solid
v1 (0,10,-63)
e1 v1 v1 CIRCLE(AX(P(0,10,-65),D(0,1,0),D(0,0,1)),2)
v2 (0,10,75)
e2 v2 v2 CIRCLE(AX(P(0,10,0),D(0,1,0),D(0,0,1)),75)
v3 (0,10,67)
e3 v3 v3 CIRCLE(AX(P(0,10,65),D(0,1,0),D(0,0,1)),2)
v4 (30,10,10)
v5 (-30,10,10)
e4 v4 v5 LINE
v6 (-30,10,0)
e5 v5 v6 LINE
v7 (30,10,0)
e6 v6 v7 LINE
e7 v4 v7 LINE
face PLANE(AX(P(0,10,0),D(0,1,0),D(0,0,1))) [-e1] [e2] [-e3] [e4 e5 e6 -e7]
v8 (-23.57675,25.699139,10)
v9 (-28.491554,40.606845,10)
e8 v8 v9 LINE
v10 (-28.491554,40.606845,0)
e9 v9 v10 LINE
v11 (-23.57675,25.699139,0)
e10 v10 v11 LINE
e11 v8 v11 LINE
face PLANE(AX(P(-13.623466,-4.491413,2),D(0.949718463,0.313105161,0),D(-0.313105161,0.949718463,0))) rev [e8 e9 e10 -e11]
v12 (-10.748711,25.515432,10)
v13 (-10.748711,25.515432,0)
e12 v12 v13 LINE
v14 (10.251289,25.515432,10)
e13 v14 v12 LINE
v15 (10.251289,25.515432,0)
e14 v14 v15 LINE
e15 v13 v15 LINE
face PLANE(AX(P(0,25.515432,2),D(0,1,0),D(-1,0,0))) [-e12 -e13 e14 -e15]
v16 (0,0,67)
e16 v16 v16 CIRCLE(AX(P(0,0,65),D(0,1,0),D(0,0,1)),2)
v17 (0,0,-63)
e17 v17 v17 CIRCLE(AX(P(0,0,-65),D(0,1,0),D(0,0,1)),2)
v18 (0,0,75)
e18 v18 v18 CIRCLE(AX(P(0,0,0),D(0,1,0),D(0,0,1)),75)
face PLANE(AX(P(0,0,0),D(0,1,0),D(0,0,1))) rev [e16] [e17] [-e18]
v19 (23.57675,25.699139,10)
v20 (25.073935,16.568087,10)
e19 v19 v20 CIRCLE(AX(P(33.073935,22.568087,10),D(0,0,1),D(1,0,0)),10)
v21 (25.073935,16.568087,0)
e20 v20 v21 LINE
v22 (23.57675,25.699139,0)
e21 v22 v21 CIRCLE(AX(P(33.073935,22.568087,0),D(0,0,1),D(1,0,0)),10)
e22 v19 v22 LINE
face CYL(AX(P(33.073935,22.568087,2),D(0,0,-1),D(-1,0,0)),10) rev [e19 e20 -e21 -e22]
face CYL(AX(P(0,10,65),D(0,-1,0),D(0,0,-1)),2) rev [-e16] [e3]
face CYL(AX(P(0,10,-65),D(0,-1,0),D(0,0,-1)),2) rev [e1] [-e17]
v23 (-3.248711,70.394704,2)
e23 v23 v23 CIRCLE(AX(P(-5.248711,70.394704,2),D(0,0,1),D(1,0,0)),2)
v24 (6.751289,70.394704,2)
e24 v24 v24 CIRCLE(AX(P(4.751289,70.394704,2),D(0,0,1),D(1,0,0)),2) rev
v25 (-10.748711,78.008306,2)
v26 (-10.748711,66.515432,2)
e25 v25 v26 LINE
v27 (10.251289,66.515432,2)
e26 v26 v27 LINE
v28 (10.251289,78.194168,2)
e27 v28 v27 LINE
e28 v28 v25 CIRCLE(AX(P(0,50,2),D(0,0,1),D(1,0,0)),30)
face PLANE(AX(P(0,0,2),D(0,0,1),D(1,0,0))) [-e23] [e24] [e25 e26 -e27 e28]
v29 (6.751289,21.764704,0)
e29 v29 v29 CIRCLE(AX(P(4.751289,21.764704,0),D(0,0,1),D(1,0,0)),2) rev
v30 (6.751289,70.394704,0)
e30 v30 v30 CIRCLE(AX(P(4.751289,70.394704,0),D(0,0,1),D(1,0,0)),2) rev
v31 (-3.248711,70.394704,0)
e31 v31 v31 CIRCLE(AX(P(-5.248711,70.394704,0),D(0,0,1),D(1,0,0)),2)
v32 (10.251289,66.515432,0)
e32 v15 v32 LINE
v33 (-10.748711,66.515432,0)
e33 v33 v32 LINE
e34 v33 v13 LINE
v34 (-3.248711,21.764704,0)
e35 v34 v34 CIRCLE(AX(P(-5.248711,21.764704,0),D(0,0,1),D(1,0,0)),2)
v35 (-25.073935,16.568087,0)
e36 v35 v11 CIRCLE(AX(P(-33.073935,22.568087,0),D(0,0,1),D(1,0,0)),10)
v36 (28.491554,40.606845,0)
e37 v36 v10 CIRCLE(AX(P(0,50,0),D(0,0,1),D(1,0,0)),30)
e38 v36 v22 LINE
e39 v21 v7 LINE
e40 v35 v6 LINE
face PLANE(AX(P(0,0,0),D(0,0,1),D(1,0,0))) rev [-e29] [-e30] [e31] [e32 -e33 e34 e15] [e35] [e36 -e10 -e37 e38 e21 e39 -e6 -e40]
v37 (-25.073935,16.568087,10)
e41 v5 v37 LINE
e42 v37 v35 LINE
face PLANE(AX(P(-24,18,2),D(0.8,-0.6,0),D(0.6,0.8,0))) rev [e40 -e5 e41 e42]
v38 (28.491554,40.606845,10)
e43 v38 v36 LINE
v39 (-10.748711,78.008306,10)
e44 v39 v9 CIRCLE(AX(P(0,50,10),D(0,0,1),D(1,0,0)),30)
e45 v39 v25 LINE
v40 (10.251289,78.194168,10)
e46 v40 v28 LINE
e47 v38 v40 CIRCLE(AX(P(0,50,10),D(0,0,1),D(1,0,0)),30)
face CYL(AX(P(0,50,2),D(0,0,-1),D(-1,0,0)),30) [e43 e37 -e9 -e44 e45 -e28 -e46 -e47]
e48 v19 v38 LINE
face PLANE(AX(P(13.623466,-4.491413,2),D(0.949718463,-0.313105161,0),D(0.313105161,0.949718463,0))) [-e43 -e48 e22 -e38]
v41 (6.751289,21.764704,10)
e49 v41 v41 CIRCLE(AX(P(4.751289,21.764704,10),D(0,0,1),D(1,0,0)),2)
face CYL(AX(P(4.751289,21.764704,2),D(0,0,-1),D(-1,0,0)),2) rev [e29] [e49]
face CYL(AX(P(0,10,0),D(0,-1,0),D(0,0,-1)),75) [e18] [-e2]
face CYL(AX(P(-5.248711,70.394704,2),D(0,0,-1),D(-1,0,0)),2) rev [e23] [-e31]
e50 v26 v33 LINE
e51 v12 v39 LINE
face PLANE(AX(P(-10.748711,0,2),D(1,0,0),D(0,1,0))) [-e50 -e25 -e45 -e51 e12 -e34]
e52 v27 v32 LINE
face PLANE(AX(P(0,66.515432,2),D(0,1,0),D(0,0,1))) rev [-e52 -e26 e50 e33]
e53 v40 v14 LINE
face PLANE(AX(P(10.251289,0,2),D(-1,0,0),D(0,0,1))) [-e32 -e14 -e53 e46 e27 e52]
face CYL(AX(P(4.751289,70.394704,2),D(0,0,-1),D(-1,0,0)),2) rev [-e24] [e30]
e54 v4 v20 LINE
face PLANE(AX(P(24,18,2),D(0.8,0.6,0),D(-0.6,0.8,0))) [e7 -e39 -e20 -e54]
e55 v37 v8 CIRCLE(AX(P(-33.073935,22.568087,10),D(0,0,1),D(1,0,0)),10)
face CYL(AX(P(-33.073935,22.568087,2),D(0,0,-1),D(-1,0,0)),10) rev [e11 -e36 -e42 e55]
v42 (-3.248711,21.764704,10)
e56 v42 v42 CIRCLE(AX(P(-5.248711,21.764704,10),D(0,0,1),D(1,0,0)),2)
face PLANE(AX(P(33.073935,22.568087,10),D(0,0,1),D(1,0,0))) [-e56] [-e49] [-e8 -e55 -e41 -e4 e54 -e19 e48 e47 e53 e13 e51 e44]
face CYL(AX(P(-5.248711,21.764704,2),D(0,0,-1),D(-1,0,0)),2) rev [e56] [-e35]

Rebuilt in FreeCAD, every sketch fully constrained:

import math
import FreeCAD as App
import Part
import Sketcher
from FreeCAD import Vector
Q = App.Units.Quantity


def add_polygon(sketch, points):
    """Adds a closed chain of lines whose ends are joined by coincident constraints."""
    first, n = sketch.GeometryCount, len(points)
    for a, b in zip(points, points[1:] + points[:1]):
        sketch.addGeometry(Part.LineSegment(App.Vector(*a, 0), App.Vector(*b, 0)), False)
    for i in range(n):
        sketch.addConstraint(Sketcher.Constraint("Coincident", first + i, 2, first + (i + 1) % n, 1))

doc = App.newDocument("Part")
body = doc.addObject("PartDesign::Body", "Body")

# Sketch on XZ plane
sketch1 = body.newObject("Sketcher::SketchObject", "Sketch")
sketch1.AttachmentSupport = (doc.getObject("XZ_Plane"), [""])
sketch1.MapMode = "FlatFace"
sketch1.addGeometry([
    Part.Circle(Vector(0, 0, 0), Vector(0, 0, 1), 75),
    Part.Circle(Vector(0, -65, 0), Vector(0, 0, 1), 2),
    Part.Circle(Vector(0, 65, 0), Vector(0, 0, 1), 2),
], False)
sketch1.addConstraint([
    Sketcher.Constraint("Coincident", 0, 3, -1, 1),
    Sketcher.Constraint("Equal", 1, 2),
    Sketcher.Constraint("Symmetric", 1, 3, 2, 3, -1, 1),
    Sketcher.Constraint("PointOnObject", 1, 3, -2),
    Sketcher.Constraint("Diameter", 0, Q("150 mm")),
    Sketcher.Constraint("Diameter", 1, Q("4 mm")),
    Sketcher.Constraint("DistanceY", 1, 3, -1, 1, Q("65 mm")),
])
pad1 = body.newObject("PartDesign::Pad", "Pad")
pad1.Profile = sketch1
pad1.Length = 10
pad1.Reversed = True

# Sketch on XY plane
sketch2 = body.newObject("Sketcher::SketchObject", "Sketch001")
sketch2.AttachmentSupport = (doc.getObject("XY_Plane"), [""])
sketch2.MapMode = "FlatFace"
sketch2.addGeometry(Part.LineSegment(Vector(-25.1, 16.6, 0), Vector(-30, 10, 0)), False)  # 0
sketch2.addGeometry(Part.LineSegment(Vector(-30, 10, 0), Vector(30, 10, 0)), False)  # 1
sketch2.addGeometry(Part.LineSegment(Vector(30, 10, 0), Vector(25.1, 16.6, 0)), False)  # 2
sketch2.addGeometry(Part.ArcOfCircle(Part.Circle(Vector(33.1, 22.6, 0), Vector(0, 0, 1), 10), math.radians(162), math.radians(217)), False)  # 3
sketch2.addGeometry(Part.LineSegment(Vector(23.6, 25.7, 0), Vector(28.5, 40.6, 0)), False)  # 4
sketch2.addGeometry(Part.ArcOfCircle(Part.Circle(Vector(0, 50, 0), Vector(0, 0, 1), 30), math.radians(-18), math.radians(70)), False)  # 5
sketch2.addGeometry(Part.ArcOfCircle(Part.Circle(Vector(0, 50, 0), Vector(0, 0, 1), 30), math.radians(70), math.radians(111)), False)  # 6
sketch2.addGeometry(Part.ArcOfCircle(Part.Circle(Vector(0, 50, 0), Vector(0, 0, 1), 30), math.radians(111), math.radians(198)), False)  # 7
sketch2.addGeometry(Part.LineSegment(Vector(-28.5, 40.6, 0), Vector(-23.6, 25.7, 0)), False)  # 8
sketch2.addGeometry(Part.ArcOfCircle(Part.Circle(Vector(-33.1, 22.6, 0), Vector(0, 0, 1), 10), math.radians(-37), math.radians(18)), False)  # 9
add_polygon(sketch2, [(10.3, 66.5), (10.3, 25.5), (-10.7, 25.5), (-10.7, 66.5)])  # lines 10-13
sketch2.addGeometry(Part.Circle(Vector(4.8, 21.8, 0), Vector(0, 0, 1), 2), False)  # 14
sketch2.addGeometry(Part.Circle(Vector(-5.2, 21.8, 0), Vector(0, 0, 1), 2), False)  # 15
sketch2.addGeometry(Part.Circle(Vector(4.8, 70.4, 0), Vector(0, 0, 1), 2), False)  # 16
sketch2.addGeometry(Part.Circle(Vector(-5.2, 70.4, 0), Vector(0, 0, 1), 2), False)  # 17
sketch2.addConstraint([
    Sketcher.Constraint("Coincident", 0, 2, 1, 1),
    Sketcher.Constraint("Coincident", 1, 2, 2, 1),
    Sketcher.Constraint("Tangent", 2, 2, 3, 2),
    Sketcher.Constraint("Tangent", 3, 1, 4, 1),
    Sketcher.Constraint("Tangent", 4, 2, 5, 1),
    Sketcher.Constraint("Tangent", 5, 2, 6, 1),
    Sketcher.Constraint("Tangent", 6, 2, 7, 1),
    Sketcher.Constraint("Tangent", 7, 2, 8, 1),
    Sketcher.Constraint("Tangent", 8, 2, 9, 2),
    Sketcher.Constraint("Tangent", 9, 1, 0, 1),
    Sketcher.Constraint("Horizontal", 1),
    Sketcher.Constraint("Vertical", 10),
    Sketcher.Constraint("Horizontal", 11),
    Sketcher.Constraint("Vertical", 12),
    Sketcher.Constraint("Horizontal", 13),
    Sketcher.Constraint("Coincident", 7, 3, 5, 3),
    Sketcher.Constraint("Equal", 3, 9),
    Sketcher.Constraint("Equal", 14, 15),
    Sketcher.Constraint("Equal", 15, 16),
    Sketcher.Constraint("Equal", 16, 17),
    Sketcher.Constraint("Symmetric", 3, 3, 9, 3, -2),
    Sketcher.Constraint("PointOnObject", 5, 3, -2),
    Sketcher.Constraint("Horizontal", 14, 3, 15, 3),
    Sketcher.Constraint("Horizontal", 16, 3, 17, 3),
    Sketcher.Constraint("Horizontal", 2, 2, 9, 1),
    Sketcher.Constraint("Vertical", 14, 3, 16, 3),
    Sketcher.Constraint("Vertical", 15, 3, 17, 3),
    Sketcher.Constraint("Vertical", 5, 2, 10, 2),
    Sketcher.Constraint("Vertical", 6, 2, 11, 2),
    Sketcher.Constraint("Diameter", 14, Q("4 mm")),
    Sketcher.Constraint("Radius", 3, Q("10 mm")),
    Sketcher.Constraint("Radius", 5, Q("30 mm")),
    Sketcher.Constraint("DistanceX", 1, 1, 1, 2, Q("60 mm")),
    Sketcher.Constraint("DistanceX", 11, 2, 11, 1, Q("21 mm")),
    Sketcher.Constraint("DistanceY", 10, 2, 10, 1, Q("41 mm")),
    Sketcher.Constraint("DistanceY", -1, 1, 5, 3, Q("50 mm")),
    Sketcher.Constraint("DistanceY", -1, 1, 0, 2, Q("10 mm")),
    Sketcher.Constraint("DistanceX", 15, 3, 14, 3, Q("10 mm")),
    Sketcher.Constraint("DistanceX", 2, 2, 3, 3, Q("8 mm")),
    Sketcher.Constraint("DistanceX", 16, 3, 5, 2, Q("5.5 mm")),
    Sketcher.Constraint("DistanceY", 14, 3, 16, 3, Q("48.63 mm")),
    Sketcher.Constraint("DistanceY", 17, 3, 6, 2, Q("7.613601 mm")),
    Sketcher.Constraint("Distance", 0, Q("8.210109 mm")),
    Sketcher.Constraint("DistanceX", -1, 1, 14, 3, Q("4.751289 mm")),
    Sketcher.Constraint("DistanceY", -1, 1, 10, 2, Q("25.515432 mm")),
])
pad2 = body.newObject("PartDesign::Pad", "Pad001")
pad2.Profile = sketch2
pad2.Length = 2

# Sketch on XY plane
sketch3 = body.newObject("Sketcher::SketchObject", "Sketch002")
sketch3.AttachmentSupport = (doc.getObject("XY_Plane"), [""])
sketch3.MapMode = "FlatFace"
sketch3.AttachmentOffset = App.Placement(Vector(0, 0, 2), App.Rotation())
sketch3.addGeometry([
    Part.LineSegment(Vector(23.6, 25.7, 0), Vector(28.5, 40.6, 0)),  # 0
    Part.ArcOfCircle(Part.Circle(Vector(0, 50, 0), Vector(0, 0, 1), 30), math.radians(-18), math.radians(70)),  # 1
    Part.LineSegment(Vector(10.3, 78.2, 0), Vector(10.3, 25.5, 0)),  # 2
    Part.LineSegment(Vector(10.3, 25.5, 0), Vector(-10.7, 25.5, 0)),  # 3
    Part.LineSegment(Vector(-10.7, 25.5, 0), Vector(-10.7, 78, 0)),  # 4
    Part.ArcOfCircle(Part.Circle(Vector(0, 50, 0), Vector(0, 0, 1), 30), math.radians(111), math.radians(198)),  # 5
    Part.LineSegment(Vector(-28.5, 40.6, 0), Vector(-23.6, 25.7, 0)),  # 6
    Part.ArcOfCircle(Part.Circle(Vector(-33.1, 22.6, 0), Vector(0, 0, 1), 10), math.radians(-37), math.radians(18)),  # 7
    Part.LineSegment(Vector(-25.1, 16.6, 0), Vector(-30, 10, 0)),  # 8
    Part.LineSegment(Vector(-30, 10, 0), Vector(30, 10, 0)),  # 9
    Part.LineSegment(Vector(30, 10, 0), Vector(25.1, 16.6, 0)),  # 10
    Part.ArcOfCircle(Part.Circle(Vector(33.1, 22.6, 0), Vector(0, 0, 1), 10), math.radians(162), math.radians(217)),  # 11
    Part.Circle(Vector(-5.2, 21.8, 0), Vector(0, 0, 1), 2),  # 12
    Part.Circle(Vector(4.8, 21.8, 0), Vector(0, 0, 1), 2),  # 13
], False)
sketch3.addConstraint([
    Sketcher.Constraint("Tangent", 0, 2, 1, 1),
    Sketcher.Constraint("Coincident", 1, 2, 2, 1),
    Sketcher.Constraint("Coincident", 2, 2, 3, 1),
    Sketcher.Constraint("Coincident", 3, 2, 4, 1),
    Sketcher.Constraint("Coincident", 4, 2, 5, 1),
    Sketcher.Constraint("Tangent", 5, 2, 6, 1),
    Sketcher.Constraint("Tangent", 6, 2, 7, 2),
    Sketcher.Constraint("Tangent", 7, 1, 8, 1),
    Sketcher.Constraint("Coincident", 8, 2, 9, 1),
    Sketcher.Constraint("Coincident", 9, 2, 10, 1),
    Sketcher.Constraint("Tangent", 10, 2, 11, 2),
    Sketcher.Constraint("Tangent", 11, 1, 0, 1),
    Sketcher.Constraint("Vertical", 2),
    Sketcher.Constraint("Horizontal", 3),
    Sketcher.Constraint("Vertical", 4),
    Sketcher.Constraint("Horizontal", 9),
    Sketcher.Constraint("Coincident", 5, 3, 1, 3),
    Sketcher.Constraint("Equal", 1, 5),
    Sketcher.Constraint("Equal", 7, 11),
    Sketcher.Constraint("Equal", 12, 13),
    Sketcher.Constraint("Symmetric", 7, 3, 11, 3, -2),
    Sketcher.Constraint("PointOnObject", 1, 3, -2),
    Sketcher.Constraint("Horizontal", 12, 3, 13, 3),
    Sketcher.Constraint("Horizontal", 7, 1, 10, 2),
    Sketcher.Constraint("Diameter", 12, Q("4 mm")),
    Sketcher.Constraint("Radius", 1, Q("30 mm")),
    Sketcher.Constraint("Radius", 7, Q("10 mm")),
    Sketcher.Constraint("DistanceX", 3, 2, 3, 1, Q("21 mm")),
    Sketcher.Constraint("DistanceX", 9, 1, 9, 2, Q("60 mm")),
    Sketcher.Constraint("DistanceY", -1, 1, 1, 3, Q("50 mm")),
    Sketcher.Constraint("DistanceY", -1, 1, 8, 2, Q("10 mm")),
    Sketcher.Constraint("DistanceX", 12, 3, 13, 3, Q("10 mm")),
    Sketcher.Constraint("DistanceX", 7, 3, 7, 1, Q("8 mm")),
    Sketcher.Constraint("DistanceX", 13, 3, 1, 2, Q("5.5 mm")),
    Sketcher.Constraint("Distance", 8, Q("8.210109 mm")),
    Sketcher.Constraint("DistanceY", 2, 2, 2, 1, Q("52.678736 mm")),
    Sketcher.Constraint("DistanceY", 4, 1, 4, 2, Q("52.492874 mm")),
    Sketcher.Constraint("DistanceY", 13, 3, 0, 2, Q("18.842141 mm")),
])
pad3 = body.newObject("PartDesign::Pad", "Pad002")
pad3.Profile = sketch3
pad3.Length = 8

doc.recompute()
